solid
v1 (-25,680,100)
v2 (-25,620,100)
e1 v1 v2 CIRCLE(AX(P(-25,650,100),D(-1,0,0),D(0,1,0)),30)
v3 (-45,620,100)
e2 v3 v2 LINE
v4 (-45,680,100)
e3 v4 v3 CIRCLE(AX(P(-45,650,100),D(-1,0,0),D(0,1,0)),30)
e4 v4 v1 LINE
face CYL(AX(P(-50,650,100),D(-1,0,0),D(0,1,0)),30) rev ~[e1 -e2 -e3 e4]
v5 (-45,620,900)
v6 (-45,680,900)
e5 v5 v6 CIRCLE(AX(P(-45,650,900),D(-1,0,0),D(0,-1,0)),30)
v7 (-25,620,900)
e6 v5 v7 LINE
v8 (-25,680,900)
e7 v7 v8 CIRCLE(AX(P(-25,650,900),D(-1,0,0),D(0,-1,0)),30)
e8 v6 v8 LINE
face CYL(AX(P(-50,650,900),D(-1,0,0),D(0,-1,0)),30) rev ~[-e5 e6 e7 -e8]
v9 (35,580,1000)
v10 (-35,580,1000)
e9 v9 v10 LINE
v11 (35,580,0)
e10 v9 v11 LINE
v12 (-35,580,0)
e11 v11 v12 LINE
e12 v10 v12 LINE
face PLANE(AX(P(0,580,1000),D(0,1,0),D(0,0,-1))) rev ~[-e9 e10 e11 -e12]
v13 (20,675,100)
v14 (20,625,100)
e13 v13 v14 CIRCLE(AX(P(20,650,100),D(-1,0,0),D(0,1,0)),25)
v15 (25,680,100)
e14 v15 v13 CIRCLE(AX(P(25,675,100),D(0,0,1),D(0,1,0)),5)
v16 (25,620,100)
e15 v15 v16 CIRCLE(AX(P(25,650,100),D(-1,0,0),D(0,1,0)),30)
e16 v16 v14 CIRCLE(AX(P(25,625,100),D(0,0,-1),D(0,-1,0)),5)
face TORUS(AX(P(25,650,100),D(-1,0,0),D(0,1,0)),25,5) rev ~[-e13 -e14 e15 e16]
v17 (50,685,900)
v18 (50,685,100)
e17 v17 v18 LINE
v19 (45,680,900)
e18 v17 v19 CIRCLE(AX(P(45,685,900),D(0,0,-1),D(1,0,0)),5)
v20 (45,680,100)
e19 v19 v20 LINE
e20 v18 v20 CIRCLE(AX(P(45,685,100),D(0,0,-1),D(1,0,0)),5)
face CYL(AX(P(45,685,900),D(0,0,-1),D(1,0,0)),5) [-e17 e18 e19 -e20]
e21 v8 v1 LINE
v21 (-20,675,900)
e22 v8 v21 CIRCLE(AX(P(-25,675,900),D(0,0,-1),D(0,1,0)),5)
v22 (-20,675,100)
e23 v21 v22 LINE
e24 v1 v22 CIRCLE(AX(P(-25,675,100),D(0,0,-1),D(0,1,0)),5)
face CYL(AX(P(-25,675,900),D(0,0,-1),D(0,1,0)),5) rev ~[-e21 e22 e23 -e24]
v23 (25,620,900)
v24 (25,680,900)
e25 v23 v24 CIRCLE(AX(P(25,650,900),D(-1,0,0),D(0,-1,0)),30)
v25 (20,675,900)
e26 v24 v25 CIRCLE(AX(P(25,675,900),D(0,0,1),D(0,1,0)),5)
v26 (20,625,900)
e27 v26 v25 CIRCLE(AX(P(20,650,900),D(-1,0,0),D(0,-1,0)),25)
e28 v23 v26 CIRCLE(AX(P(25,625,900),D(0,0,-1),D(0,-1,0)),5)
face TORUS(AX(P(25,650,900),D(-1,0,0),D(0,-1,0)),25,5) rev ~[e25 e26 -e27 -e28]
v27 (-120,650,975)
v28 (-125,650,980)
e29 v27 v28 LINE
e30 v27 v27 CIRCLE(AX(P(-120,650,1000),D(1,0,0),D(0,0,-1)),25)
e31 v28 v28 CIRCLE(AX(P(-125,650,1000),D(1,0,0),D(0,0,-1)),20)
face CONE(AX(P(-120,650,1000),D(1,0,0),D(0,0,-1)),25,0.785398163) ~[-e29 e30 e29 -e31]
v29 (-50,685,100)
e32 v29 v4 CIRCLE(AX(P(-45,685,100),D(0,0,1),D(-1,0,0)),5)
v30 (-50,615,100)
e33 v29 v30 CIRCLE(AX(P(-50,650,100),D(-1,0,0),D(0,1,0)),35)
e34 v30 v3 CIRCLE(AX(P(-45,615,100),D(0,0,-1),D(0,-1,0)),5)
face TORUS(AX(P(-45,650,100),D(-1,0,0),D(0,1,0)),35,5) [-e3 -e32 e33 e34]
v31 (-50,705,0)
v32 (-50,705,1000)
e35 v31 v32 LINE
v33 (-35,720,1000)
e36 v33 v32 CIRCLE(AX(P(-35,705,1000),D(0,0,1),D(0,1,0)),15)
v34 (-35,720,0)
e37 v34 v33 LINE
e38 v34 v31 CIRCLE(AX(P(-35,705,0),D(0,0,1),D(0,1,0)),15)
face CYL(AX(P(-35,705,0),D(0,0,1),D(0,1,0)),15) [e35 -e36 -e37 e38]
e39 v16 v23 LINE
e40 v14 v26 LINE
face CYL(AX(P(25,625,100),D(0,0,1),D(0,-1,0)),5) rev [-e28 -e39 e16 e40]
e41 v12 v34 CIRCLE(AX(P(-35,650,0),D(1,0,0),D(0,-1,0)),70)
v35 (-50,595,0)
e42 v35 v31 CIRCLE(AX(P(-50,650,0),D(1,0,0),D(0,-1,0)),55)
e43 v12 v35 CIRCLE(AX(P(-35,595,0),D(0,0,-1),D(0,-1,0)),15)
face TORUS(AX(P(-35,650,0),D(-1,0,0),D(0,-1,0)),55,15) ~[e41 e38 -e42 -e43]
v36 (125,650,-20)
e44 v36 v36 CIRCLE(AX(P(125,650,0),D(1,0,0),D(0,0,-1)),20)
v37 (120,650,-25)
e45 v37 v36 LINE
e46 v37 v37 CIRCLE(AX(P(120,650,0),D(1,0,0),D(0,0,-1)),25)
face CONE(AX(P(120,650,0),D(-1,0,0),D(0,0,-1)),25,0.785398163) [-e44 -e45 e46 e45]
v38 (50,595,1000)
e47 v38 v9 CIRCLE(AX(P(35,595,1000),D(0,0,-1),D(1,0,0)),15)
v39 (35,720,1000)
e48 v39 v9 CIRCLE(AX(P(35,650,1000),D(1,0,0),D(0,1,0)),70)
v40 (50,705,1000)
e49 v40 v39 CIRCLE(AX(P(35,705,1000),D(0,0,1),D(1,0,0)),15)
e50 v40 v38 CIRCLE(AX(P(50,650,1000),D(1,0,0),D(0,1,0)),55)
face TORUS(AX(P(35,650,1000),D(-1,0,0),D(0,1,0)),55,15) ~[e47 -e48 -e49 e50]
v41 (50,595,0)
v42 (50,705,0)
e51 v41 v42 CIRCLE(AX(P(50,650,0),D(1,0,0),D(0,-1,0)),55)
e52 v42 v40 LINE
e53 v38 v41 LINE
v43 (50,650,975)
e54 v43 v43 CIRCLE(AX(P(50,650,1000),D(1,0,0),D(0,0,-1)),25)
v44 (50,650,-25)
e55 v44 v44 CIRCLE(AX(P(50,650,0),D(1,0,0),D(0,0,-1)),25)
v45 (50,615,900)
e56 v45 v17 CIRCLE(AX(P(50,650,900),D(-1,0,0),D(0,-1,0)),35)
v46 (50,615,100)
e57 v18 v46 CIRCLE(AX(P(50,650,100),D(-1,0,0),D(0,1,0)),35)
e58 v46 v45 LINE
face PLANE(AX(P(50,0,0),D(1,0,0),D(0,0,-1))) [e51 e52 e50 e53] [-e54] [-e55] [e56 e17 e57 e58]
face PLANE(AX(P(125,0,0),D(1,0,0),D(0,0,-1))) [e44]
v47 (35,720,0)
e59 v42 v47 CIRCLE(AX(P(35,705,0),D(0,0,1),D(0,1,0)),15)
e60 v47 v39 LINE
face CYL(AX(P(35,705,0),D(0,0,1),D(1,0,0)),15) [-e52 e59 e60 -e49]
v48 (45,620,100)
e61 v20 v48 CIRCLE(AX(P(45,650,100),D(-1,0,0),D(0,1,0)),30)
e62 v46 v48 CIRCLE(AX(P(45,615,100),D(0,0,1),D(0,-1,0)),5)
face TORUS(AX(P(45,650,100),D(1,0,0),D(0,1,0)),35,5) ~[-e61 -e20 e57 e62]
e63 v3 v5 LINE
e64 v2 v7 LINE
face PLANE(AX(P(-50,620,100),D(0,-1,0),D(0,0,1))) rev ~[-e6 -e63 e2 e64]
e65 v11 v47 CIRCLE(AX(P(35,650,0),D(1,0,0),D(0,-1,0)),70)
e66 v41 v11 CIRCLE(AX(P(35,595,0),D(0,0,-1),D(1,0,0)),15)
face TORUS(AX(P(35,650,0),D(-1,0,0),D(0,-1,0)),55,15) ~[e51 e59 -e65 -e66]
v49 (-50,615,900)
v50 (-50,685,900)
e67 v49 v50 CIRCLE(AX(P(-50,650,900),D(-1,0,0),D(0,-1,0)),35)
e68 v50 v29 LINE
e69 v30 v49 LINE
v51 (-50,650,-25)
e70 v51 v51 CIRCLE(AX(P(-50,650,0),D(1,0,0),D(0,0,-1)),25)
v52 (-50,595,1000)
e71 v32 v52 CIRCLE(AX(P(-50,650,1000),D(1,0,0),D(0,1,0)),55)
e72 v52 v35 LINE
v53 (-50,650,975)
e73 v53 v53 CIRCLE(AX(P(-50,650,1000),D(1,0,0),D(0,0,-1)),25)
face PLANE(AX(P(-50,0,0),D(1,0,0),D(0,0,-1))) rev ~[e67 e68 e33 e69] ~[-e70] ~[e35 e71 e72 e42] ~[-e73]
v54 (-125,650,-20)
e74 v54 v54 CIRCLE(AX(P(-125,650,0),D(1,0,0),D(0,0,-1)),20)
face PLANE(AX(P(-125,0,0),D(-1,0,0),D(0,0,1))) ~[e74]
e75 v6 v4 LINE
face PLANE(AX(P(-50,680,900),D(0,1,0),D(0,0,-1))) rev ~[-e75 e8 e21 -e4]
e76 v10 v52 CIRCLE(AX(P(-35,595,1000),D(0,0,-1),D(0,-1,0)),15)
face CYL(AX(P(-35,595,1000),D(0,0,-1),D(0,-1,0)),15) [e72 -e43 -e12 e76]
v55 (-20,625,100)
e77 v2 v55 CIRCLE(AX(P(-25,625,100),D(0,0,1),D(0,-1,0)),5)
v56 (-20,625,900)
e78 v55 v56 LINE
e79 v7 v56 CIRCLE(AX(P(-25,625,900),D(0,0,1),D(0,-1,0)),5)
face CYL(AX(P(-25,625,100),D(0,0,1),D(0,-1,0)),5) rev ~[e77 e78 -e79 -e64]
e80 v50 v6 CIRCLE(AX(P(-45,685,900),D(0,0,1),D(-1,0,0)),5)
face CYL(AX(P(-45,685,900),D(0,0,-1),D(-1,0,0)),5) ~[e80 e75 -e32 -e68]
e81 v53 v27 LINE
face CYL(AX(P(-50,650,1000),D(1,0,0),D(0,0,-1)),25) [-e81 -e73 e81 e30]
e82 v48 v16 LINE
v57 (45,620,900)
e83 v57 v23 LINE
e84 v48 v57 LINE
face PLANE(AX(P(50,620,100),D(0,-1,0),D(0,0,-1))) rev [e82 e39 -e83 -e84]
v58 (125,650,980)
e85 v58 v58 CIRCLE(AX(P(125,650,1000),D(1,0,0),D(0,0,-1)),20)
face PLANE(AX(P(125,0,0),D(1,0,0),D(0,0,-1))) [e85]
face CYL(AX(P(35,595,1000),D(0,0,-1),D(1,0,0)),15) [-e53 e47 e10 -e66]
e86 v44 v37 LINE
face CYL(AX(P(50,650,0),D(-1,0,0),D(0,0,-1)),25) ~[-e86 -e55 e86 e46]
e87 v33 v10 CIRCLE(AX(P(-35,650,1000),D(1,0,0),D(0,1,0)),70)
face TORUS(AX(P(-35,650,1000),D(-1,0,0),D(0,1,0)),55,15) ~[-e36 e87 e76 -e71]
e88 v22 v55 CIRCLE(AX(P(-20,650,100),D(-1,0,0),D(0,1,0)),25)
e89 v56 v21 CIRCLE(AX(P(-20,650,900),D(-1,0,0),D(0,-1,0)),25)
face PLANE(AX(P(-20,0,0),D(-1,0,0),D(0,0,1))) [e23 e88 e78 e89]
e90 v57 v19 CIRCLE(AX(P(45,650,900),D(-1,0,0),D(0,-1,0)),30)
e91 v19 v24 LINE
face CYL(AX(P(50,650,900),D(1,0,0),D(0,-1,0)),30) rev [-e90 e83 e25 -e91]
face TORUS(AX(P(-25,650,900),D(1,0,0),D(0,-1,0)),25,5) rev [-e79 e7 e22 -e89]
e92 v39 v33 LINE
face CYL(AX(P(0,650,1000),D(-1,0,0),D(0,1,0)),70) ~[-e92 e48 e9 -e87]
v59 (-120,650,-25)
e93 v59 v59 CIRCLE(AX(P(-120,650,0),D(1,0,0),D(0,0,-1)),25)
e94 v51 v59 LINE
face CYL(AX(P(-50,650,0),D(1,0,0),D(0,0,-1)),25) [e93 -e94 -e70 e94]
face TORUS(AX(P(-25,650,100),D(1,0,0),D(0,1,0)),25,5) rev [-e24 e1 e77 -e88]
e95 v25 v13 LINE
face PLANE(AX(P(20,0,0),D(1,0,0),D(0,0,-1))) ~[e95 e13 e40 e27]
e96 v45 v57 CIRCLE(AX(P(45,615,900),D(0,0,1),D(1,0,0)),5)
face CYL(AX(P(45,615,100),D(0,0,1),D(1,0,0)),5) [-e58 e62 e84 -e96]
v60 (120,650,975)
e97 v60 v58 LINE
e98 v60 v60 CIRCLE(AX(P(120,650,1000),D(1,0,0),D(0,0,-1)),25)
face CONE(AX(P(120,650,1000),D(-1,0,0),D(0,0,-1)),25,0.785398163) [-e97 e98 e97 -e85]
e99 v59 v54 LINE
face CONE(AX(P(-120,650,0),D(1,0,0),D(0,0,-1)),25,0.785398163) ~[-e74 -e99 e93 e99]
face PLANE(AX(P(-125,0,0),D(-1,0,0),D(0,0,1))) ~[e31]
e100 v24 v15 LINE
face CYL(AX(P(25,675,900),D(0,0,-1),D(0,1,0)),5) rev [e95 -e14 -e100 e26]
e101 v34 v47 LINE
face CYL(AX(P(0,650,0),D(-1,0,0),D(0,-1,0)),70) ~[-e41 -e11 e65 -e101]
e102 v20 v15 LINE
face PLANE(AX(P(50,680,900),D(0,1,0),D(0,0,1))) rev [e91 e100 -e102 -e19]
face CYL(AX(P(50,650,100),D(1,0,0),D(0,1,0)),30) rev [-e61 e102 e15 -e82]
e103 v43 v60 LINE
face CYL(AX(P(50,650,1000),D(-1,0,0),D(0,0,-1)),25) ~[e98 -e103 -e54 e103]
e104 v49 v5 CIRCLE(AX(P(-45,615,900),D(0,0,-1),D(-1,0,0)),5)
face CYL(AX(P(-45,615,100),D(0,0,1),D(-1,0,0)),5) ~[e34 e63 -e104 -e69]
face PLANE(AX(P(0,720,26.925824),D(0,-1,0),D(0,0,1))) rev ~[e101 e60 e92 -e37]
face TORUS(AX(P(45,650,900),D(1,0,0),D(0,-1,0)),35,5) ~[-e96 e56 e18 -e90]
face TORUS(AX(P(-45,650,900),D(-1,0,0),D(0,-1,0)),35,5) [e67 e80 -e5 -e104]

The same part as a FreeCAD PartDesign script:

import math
import FreeCAD as App
import Part
import Sketcher
from FreeCAD import Vector
Q = App.Units.Quantity


def edges_at(feature, points):
    """Names of the edges that pass closest to the given points."""
    edges = feature.Shape.Edges
    near = lambda p: min(range(len(edges)), key=lambda i: edges[i].distToShape(Part.Vertex(*p))[0])
    return sorted({f"Edge{near(p) + 1}" for p in points})

doc = App.newDocument("Part")
body = doc.addObject("PartDesign::Body", "Body")

# Sketch on YZ plane
sketch1 = body.newObject("Sketcher::SketchObject", "Sketch")
sketch1.AttachmentSupport = (doc.getObject("YZ_Plane"), [""])
sketch1.MapMode = "FlatFace"
sketch1.addGeometry(Part.ArcOfCircle(Part.Circle(Vector(650, 0, 0), Vector(0, 0, 1), 70), math.radians(180), math.radians(360)), False)
sketch1.addGeometry(Part.LineSegment(Vector(720, 0, 0), Vector(720, 1000, 0)), False)
sketch1.addGeometry(Part.ArcOfCircle(Part.Circle(Vector(650, 1000, 0), Vector(0, 0, 1), 70), math.radians(0), math.radians(180)), False)
sketch1.addGeometry(Part.LineSegment(Vector(580, 1000, 0), Vector(580, 0, 0)), False)
sketch1.addConstraint(Sketcher.Constraint("Tangent", 0, 2, 1, 1))
sketch1.addConstraint(Sketcher.Constraint("Tangent", 1, 2, 2, 1))
sketch1.addConstraint(Sketcher.Constraint("Tangent", 2, 2, 3, 1))
sketch1.addConstraint(Sketcher.Constraint("Tangent", 3, 2, 0, 1))
sketch1.addConstraint(Sketcher.Constraint("Vertical", 1))
sketch1.addConstraint(Sketcher.Constraint("Vertical", 3))
sketch1.addConstraint(Sketcher.Constraint("PointOnObject", 0, 3, -1))
sketch1.addConstraint(Sketcher.Constraint("Radius", 0, Q("70 mm")))
sketch1.addConstraint(Sketcher.Constraint("DistanceY", 1, 1, 1, 2, Q("1000 mm")))
sketch1.addConstraint(Sketcher.Constraint("DistanceX", -1, 1, 0, 3, Q("650 mm")))
pad1 = body.newObject("PartDesign::Pad", "Pad")
pad1.Profile = sketch1
pad1.Length = 100
pad1.Midplane = True

# Sketch on YZ plane
sketch2 = body.newObject("Sketcher::SketchObject", "Sketch001")
sketch2.AttachmentSupport = (doc.getObject("YZ_Plane"), [""])
sketch2.MapMode = "FlatFace"
sketch2.AttachmentOffset = App.Placement(Vector(0, 0, 50), App.Rotation())
sketch2.addGeometry(Part.Circle(Vector(650, 1000, 0), Vector(0, 0, 1), 25), False)
sketch2.addGeometry(Part.Circle(Vector(650, 0, 0), Vector(0, 0, 1), 25), False)
sketch2.addConstraint(Sketcher.Constraint("Equal", 0, 1))
sketch2.addConstraint(Sketcher.Constraint("PointOnObject", 1, 3, -1))
sketch2.addConstraint(Sketcher.Constraint("Vertical", 0, 3, 1, 3))
sketch2.addConstraint(Sketcher.Constraint("Diameter", 0, Q("50 mm")))
sketch2.addConstraint(Sketcher.Constraint("DistanceX", -1, 1, 0, 3, Q("650 mm")))
sketch2.addConstraint(Sketcher.Constraint("DistanceY", -1, 1, 0, 3, Q("1000 mm")))
pad2 = body.newObject("PartDesign::Pad", "Pad001")
pad2.Profile = sketch2
pad2.Length = 75
doc.recompute()

mirrored = body.newObject("PartDesign::Mirrored", "Mirrored")
mirrored.Originals = [pad2]
mirrored.MirrorPlane = (doc.getObject("YZ_Plane"), [""])
body.Tip = mirrored
doc.recompute()

chamfer = body.newObject("PartDesign::Chamfer", "Chamfer")
chamfer.Base = (mirrored, edges_at(mirrored, [
    (125, 640.96, 1023.308),
    (125, 640.96, 23.308),
    (-125, 640.96, 1023.308),
    (-125, 640.96, 23.308),
]))
chamfer.Size = 5
doc.recompute()

fillet = body.newObject("PartDesign::Fillet", "Fillet")
fillet.Base = (chamfer, edges_at(chamfer, [
    (50, 580, 500),
    (50, 650, -70),
    (50, 720, 500),
    (50, 650, 1070),
    (-50, 580, 500),
    (-50, 650, 1070),
    (-50, 720, 500),
    (-50, 650, -70),
]))
fillet.Radius = 15

# Sketch on YZ plane
sketch3 = body.newObject("Sketcher::SketchObject", "Sketch002")
sketch3.AttachmentSupport = (doc.getObject("YZ_Plane"), [""])
sketch3.MapMode = "FlatFace"
sketch3.AttachmentOffset = App.Placement(Vector(0, 0, -50), App.Rotation())
sketch3.addGeometry(Part.ArcOfCircle(Part.Circle(Vector(650, 100, 0), Vector(0, 0, 1), 30), math.radians(180), math.radians(360)), False)
sketch3.addGeometry(Part.LineSegment(Vector(620, 100, 0), Vector(620, 900, 0)), False)
sketch3.addGeometry(Part.ArcOfCircle(Part.Circle(Vector(650, 900, 0), Vector(0, 0, 1), 30), math.radians(0), math.radians(180)), False)
sketch3.addGeometry(Part.LineSegment(Vector(680, 900, 0), Vector(680, 100, 0)), False)
sketch3.addConstraint(Sketcher.Constraint("Tangent", 0, 1, 1, 1))
sketch3.addConstraint(Sketcher.Constraint("Tangent", 1, 2, 2, 2))
sketch3.addConstraint(Sketcher.Constraint("Tangent", 2, 1, 3, 1))
sketch3.addConstraint(Sketcher.Constraint("Tangent", 3, 2, 0, 2))
sketch3.addConstraint(Sketcher.Constraint("Vertical", 1))
sketch3.addConstraint(Sketcher.Constraint("Vertical", 3))
sketch3.addConstraint(Sketcher.Constraint("Radius", 0, Q("30 mm")))
sketch3.addConstraint(Sketcher.Constraint("DistanceY", -1, 1, 0, 3, Q("100 mm")))
sketch3.addConstraint(Sketcher.Constraint("DistanceY", 1, 1, 1, 2, Q("800 mm")))
sketch3.addConstraint(Sketcher.Constraint("DistanceX", -1, 1, 0, 3, Q("650 mm")))
pocket1 = body.newObject("PartDesign::Pocket", "Pocket")
pocket1.Profile = sketch3
pocket1.Length = 30
pocket1.Reversed = True
doc.recompute()

mirrored2 = body.newObject("PartDesign::Mirrored", "Mirrored001")
mirrored2.Originals = [pocket1]
mirrored2.MirrorPlane = (doc.getObject("YZ_Plane"), [""])
body.Tip = mirrored2
doc.recompute()

fillet2 = body.newObject("PartDesign::Fillet", "Fillet001")
fillet2.Base = (mirrored2, edges_at(mirrored2, [
    (50, 680, 500),
    (50, 650, 70),
    (50, 620, 500),
    (50, 650, 930),
    (20, 680, 500),
    (20, 650, 930),
    (20, 620, 500),
    (20, 650, 70),
    (-20, 680, 500),
    (-20, 650, 930),
    (-20, 620, 500),
    (-20, 650, 70),
    (-50, 680, 500),
    (-50, 650, 930),
    (-50, 620, 500),
    (-50, 650, 70),
]))
fillet2.Radius = 5

doc.recompute()
